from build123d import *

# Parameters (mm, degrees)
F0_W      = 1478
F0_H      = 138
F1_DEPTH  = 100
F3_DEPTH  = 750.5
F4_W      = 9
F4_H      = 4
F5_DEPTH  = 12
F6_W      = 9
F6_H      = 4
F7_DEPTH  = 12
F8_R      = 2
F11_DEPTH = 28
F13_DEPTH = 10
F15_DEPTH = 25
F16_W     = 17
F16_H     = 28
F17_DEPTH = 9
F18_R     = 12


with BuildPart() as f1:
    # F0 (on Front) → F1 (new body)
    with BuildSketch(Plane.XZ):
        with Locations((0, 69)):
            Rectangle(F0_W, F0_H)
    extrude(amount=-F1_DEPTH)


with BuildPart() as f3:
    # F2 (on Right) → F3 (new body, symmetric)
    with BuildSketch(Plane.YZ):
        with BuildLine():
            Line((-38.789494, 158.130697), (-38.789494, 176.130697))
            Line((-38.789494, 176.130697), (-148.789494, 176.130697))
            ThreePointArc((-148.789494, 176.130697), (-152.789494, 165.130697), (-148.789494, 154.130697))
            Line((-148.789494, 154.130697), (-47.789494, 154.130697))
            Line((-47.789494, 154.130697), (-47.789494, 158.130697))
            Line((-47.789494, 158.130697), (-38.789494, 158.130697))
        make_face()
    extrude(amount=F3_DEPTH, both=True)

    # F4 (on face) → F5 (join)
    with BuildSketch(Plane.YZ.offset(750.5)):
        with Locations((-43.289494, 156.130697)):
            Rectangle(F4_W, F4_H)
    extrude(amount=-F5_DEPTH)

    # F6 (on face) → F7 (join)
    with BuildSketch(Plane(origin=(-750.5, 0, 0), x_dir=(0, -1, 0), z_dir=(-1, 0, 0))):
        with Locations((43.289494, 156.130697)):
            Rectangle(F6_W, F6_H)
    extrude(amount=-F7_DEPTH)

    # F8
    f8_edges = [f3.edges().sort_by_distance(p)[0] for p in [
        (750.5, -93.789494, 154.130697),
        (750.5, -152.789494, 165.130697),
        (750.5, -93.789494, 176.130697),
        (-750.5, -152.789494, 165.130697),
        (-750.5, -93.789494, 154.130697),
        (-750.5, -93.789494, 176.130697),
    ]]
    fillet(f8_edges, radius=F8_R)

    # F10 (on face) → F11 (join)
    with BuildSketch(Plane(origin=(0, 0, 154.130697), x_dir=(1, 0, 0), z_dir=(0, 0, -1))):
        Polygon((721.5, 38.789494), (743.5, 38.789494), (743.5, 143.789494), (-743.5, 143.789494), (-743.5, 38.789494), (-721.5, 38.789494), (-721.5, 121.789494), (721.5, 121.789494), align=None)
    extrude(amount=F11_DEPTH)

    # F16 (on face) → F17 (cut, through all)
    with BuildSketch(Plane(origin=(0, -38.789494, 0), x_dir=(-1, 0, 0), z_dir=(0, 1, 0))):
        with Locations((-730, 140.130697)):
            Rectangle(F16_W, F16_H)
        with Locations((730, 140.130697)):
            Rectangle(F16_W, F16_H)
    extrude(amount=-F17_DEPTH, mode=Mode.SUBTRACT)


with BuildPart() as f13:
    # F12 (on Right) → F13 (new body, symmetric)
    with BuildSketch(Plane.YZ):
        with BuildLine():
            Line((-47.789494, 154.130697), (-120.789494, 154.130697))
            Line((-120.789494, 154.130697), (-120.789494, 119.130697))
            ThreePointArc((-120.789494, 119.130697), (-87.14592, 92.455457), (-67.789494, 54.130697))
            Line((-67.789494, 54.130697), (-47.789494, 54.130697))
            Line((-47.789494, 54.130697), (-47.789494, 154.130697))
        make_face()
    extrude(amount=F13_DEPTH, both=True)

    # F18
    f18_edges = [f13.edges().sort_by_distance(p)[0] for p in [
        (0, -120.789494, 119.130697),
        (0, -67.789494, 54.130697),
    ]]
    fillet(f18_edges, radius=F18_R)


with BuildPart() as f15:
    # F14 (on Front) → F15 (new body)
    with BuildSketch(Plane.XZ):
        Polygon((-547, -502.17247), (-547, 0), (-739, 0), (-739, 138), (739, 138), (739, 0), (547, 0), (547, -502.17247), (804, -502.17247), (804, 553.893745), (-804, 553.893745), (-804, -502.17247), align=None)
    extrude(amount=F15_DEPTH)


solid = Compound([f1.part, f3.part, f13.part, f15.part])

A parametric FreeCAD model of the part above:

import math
import FreeCAD as App
import Part
import Sketcher


def edges_at(feature, points):
    """Names of the edges that pass closest to the given points."""
    edges = feature.Shape.Edges
    near = lambda p: min(range(len(edges)), key=lambda i: edges[i].distToShape(Part.Vertex(*p))[0])
    return sorted({f"Edge{near(p) + 1}" for p in points})


def add_polygon(sketch, points):
    """Adds a closed chain of lines whose ends are joined by coincident constraints."""
    first, n = sketch.GeometryCount, len(points)
    for a, b in zip(points, points[1:] + points[:1]):
        sketch.addGeometry(Part.LineSegment(App.Vector(*a, 0), App.Vector(*b, 0)), False)
    for i in range(n):
        sketch.addConstraint(Sketcher.Constraint("Coincident", first + i, 2, first + (i + 1) % n, 1))

doc = App.newDocument("Part")
body = doc.addObject("PartDesign::Body", "Body")

# Sketch on XZ plane
sketch1 = doc.addObject("Sketcher::SketchObject", "Sketch")
body.addObject(sketch1)
sketch1.AttachmentSupport = (doc.XZ_Plane, [""])
sketch1.MapMode = "FlatFace"
add_polygon(sketch1, [(-739, 138), (-739, 0), (739, 0), (739, 138)])  # lines 0-3
sketch1.addConstraint([
    Sketcher.Constraint("Vertical", 0),
    Sketcher.Constraint("Horizontal", 1),
    Sketcher.Constraint("Vertical", 2),
    Sketcher.Constraint("Horizontal", 3),
    Sketcher.Constraint("Symmetric", 0, 2, 1, 2, -1, 1),
    Sketcher.Constraint("DistanceX", 1, 1, 1, 2, 1478.0),
    Sketcher.Constraint("DistanceY", 0, 2, 0, 1, 138.0),
])
pad1 = doc.addObject("PartDesign::Pad", "Pad")
body.addObject(pad1)
pad1.Profile = sketch1
pad1.Length = 100
pad1.Reversed = True
body2 = doc.addObject("PartDesign::Body", "Body001")

# Sketch on YZ plane
sketch2 = doc.addObject("Sketcher::SketchObject", "Sketch001")
body2.addObject(sketch2)
sketch2.AttachmentSupport = (doc.getObject("YZ_Plane001"), [""])
sketch2.MapMode = "FlatFace"
sketch2.addGeometry([
    Part.LineSegment(App.Vector(-38.789494, 158.130697, 0), App.Vector(-38.789494, 176.130697, 0)),  # 0
    Part.LineSegment(App.Vector(-38.789494, 176.130697, 0), App.Vector(-148.789494, 176.130697, 0)),  # 1
    Part.ArcOfCircle(Part.Circle(App.Vector(-135.664494, 165.130697, 0), App.Vector(0, 0, 1), 17.125), math.radians(140.033787), math.radians(219.966213)),  # 2
    Part.LineSegment(App.Vector(-148.789494, 154.130697, 0), App.Vector(-47.789494, 154.130697, 0)),  # 3
    Part.LineSegment(App.Vector(-47.789494, 154.130697, 0), App.Vector(-47.789494, 158.130697, 0)),  # 4
    Part.LineSegment(App.Vector(-47.789494, 158.130697, 0), App.Vector(-38.789494, 158.130697, 0)),  # 5
], False)
sketch2.addConstraint([
    Sketcher.Constraint("Coincident", 0, 2, 1, 1),
    Sketcher.Constraint("Coincident", 1, 2, 2, 1),
    Sketcher.Constraint("Coincident", 2, 2, 3, 1),
    Sketcher.Constraint("Coincident", 3, 2, 4, 1),
    Sketcher.Constraint("Coincident", 4, 2, 5, 1),
    Sketcher.Constraint("Coincident", 5, 2, 0, 1),
    Sketcher.Constraint("Vertical", 0),
    Sketcher.Constraint("Horizontal", 1),
    Sketcher.Constraint("Horizontal", 3),
    Sketcher.Constraint("Vertical", 4),
    Sketcher.Constraint("Horizontal", 5),
    Sketcher.Constraint("Vertical", 1, 2, 2, 2),
    Sketcher.Constraint("DistanceX", 1, 2, 1, 1, 110.0),
    Sketcher.Constraint("DistanceX", 3, 1, 3, 2, 101.0),
    Sketcher.Constraint("DistanceY", 0, 1, 0, 2, 18.0),
    Sketcher.Constraint("DistanceY", 4, 1, 4, 2, 4.0),
    Sketcher.Constraint("Radius", 2, 17.125),
    Sketcher.Constraint("DistanceX", 2, 3, -1, 1, 135.664494),
    Sketcher.Constraint("DistanceY", -1, 1, 2, 3, 165.130697),
])
pad2 = doc.addObject("PartDesign::Pad", "Pad001")
body2.addObject(pad2)
pad2.Profile = sketch2
pad2.Length = 1501
pad2.Midplane = True

# Sketch on YZ plane
sketch3 = doc.addObject("Sketcher::SketchObject", "Sketch002")
body2.addObject(sketch3)
sketch3.AttachmentSupport = (doc.getObject("YZ_Plane001"), [""])
sketch3.MapMode = "FlatFace"
sketch3.AttachmentOffset = App.Placement(App.Vector(0, 0, 750.5), App.Rotation())
add_polygon(sketch3, [(-47.789494, 158.130697), (-47.789494, 154.130697), (-38.789494, 154.130697), (-38.789494, 158.130697)])  # lines 0-3
sketch3.addConstraint([
    Sketcher.Constraint("Vertical", 0),
    Sketcher.Constraint("Horizontal", 1),
    Sketcher.Constraint("Vertical", 2),
    Sketcher.Constraint("Horizontal", 3),
    Sketcher.Constraint("DistanceX", 1, 1, 1, 2, 9.0),
    Sketcher.Constraint("DistanceY", 0, 2, 0, 1, 4.0),
    Sketcher.Constraint("DistanceX", 0, 2, -1, 1, 47.789494),
    Sketcher.Constraint("DistanceY", -1, 1, 0, 2, 154.130697),
])
pad3 = doc.addObject("PartDesign::Pad", "Pad002")
body2.addObject(pad3)
pad3.Profile = sketch3
pad3.Length = 12
pad3.Reversed = True

# Sketch on YZ plane
sketch4 = doc.addObject("Sketcher::SketchObject", "Sketch003")
body2.addObject(sketch4)
sketch4.AttachmentSupport = (doc.getObject("YZ_Plane001"), [""])
sketch4.MapMode = "FlatFace"
sketch4.AttachmentOffset = App.Placement(App.Vector(0, 0, -750.5), App.Rotation())
add_polygon(sketch4, [(-38.789494, 158.130697), (-38.789494, 154.130697), (-47.789494, 154.130697), (-47.789494, 158.130697)])  # lines 0-3
sketch4.addConstraint([
    Sketcher.Constraint("Vertical", 0),
    Sketcher.Constraint("Horizontal", 1),
    Sketcher.Constraint("Vertical", 2),
    Sketcher.Constraint("Horizontal", 3),
    Sketcher.Constraint("DistanceX", 1, 2, 1, 1, 9.0),
    Sketcher.Constraint("DistanceY", 0, 2, 0, 1, 4.0),
    Sketcher.Constraint("DistanceX", 0, 2, -1, 1, 38.789494),
    Sketcher.Constraint("DistanceY", -1, 1, 0, 2, 154.130697),
])
pad4 = doc.addObject("PartDesign::Pad", "Pad003")
body2.addObject(pad4)
pad4.Profile = sketch4
pad4.Length = 12
doc.recompute()

fillet = doc.addObject("PartDesign::Fillet", "Fillet")
body2.addObject(fillet)
fillet.Base = (pad4, edges_at(pad4, [
    (750.5, -93.789, 154.131),
    (750.5, -152.789, 165.131),
    (750.5, -93.789, 176.131),
    (-750.5, -152.789, 165.131),
    (-750.5, -93.789, 154.131),
    (-750.5, -93.789, 176.131),
]))
fillet.Radius = 2

# Sketch on XY plane
sketch5 = doc.addObject("Sketcher::SketchObject", "Sketch004")
body2.addObject(sketch5)
sketch5.AttachmentSupport = (doc.getObject("XY_Plane001"), [""])
sketch5.MapMode = "FlatFace"
sketch5.AttachmentOffset = App.Placement(App.Vector(0, 0, 154.130697), App.Rotation())
add_polygon(sketch5, [(721.5, -38.789494), (743.5, -38.789494), (743.5, -143.789494), (-743.5, -143.789494), (-743.5, -38.789494), (-721.5, -38.789494), (-721.5, -121.789494), (721.5, -121.789494)])  # lines 0-7
sketch5.addConstraint([
    Sketcher.Constraint("Horizontal", 0),
    Sketcher.Constraint("Vertical", 1),
    Sketcher.Constraint("Horizontal", 2),
    Sketcher.Constraint("Vertical", 3),
    Sketcher.Constraint("Horizontal", 4),
    Sketcher.Constraint("Vertical", 5),
    Sketcher.Constraint("Horizontal", 6),
    Sketcher.Constraint("Vertical", 7),
    Sketcher.Constraint("Symmetric", 0, 2, 3, 2, -2),
    Sketcher.Constraint("Equal", 0, 4),
    Sketcher.Constraint("DistanceX", 0, 1, 0, 2, 22.0),
    Sketcher.Constraint("DistanceX", 2, 2, 2, 1, 1487.0),
    Sketcher.Constraint("DistanceY", 1, 2, 1, 1, 105.0),
    Sketcher.Constraint("DistanceY", 5, 2, 5, 1, 83.0),
    Sketcher.Constraint("DistanceY", 0, 2, -1, 1, 38.789494),
])
pad5 = doc.addObject("PartDesign::Pad", "Pad004")
body2.addObject(pad5)
pad5.Profile = sketch5
pad5.Length = 28
pad5.Reversed = True

# Sketch on XZ plane
sketch6 = doc.addObject("Sketcher::SketchObject", "Sketch005")
body2.addObject(sketch6)
sketch6.AttachmentSupport = (doc.getObject("XZ_Plane001"), [""])
sketch6.MapMode = "FlatFace"
sketch6.AttachmentOffset = App.Placement(App.Vector(0, 0, 38.789494), App.Rotation())
add_polygon(sketch6, [(738.5, 154.130697), (738.5, 126.130697), (721.5, 126.130697), (721.5, 154.130697)])  # lines 0-3
add_polygon(sketch6, [(-721.5, 154.130697), (-721.5, 126.130697), (-738.5, 126.130697), (-738.5, 154.130697)])  # lines 4-7
sketch6.addConstraint([
    Sketcher.Constraint("Vertical", 0),
    Sketcher.Constraint("Horizontal", 1),
    Sketcher.Constraint("Vertical", 2),
    Sketcher.Constraint("Horizontal", 3),
    Sketcher.Constraint("Vertical", 4),
    Sketcher.Constraint("Horizontal", 5),
    Sketcher.Constraint("Vertical", 6),
    Sketcher.Constraint("Horizontal", 7),
    Sketcher.Constraint("Symmetric", 1, 2, 4, 2, -2),
    Sketcher.Constraint("Symmetric", 3, 2, 6, 2, -2),
    Sketcher.Constraint("DistanceX", 1, 2, 1, 1, 17.0),
    Sketcher.Constraint("DistanceY", 0, 2, 0, 1, 28.0),
    Sketcher.Constraint("DistanceX", 4, 2, 1, 2, 1443.0),
    Sketcher.Constraint("DistanceY", -1, 1, 0, 2, 126.130697),
])
pocket1 = doc.addObject("PartDesign::Pocket", "Pocket")
body2.addObject(pocket1)
pocket1.Profile = sketch6
pocket1.Length = 9
pocket1.Reversed = True
body3 = doc.addObject("PartDesign::Body", "Body002")

# Sketch on YZ plane
sketch7 = doc.addObject("Sketcher::SketchObject", "Sketch006")
body3.addObject(sketch7)
sketch7.AttachmentSupport = (doc.getObject("YZ_Plane002"), [""])
sketch7.MapMode = "FlatFace"
sketch7.addGeometry([
    Part.LineSegment(App.Vector(-47.789494, 154.130697, 0), App.Vector(-120.789494, 154.130697, 0)),  # 0
    Part.LineSegment(App.Vector(-120.789494, 154.130697, 0), App.Vector(-120.789494, 119.130697, 0)),  # 1
    Part.ArcOfCircle(Part.Circle(App.Vector(-164.647789, 29.261626, 0), App.Vector(0, 0, 1), 100), math.radians(14.400049), math.radians(63.986497)),  # 2
    Part.LineSegment(App.Vector(-67.789494, 54.130697, 0), App.Vector(-47.789494, 54.130697, 0)),  # 3
    Part.LineSegment(App.Vector(-47.789494, 54.130697, 0), App.Vector(-47.789494, 154.130697, 0)),  # 4
], False)
sketch7.addConstraint([
    Sketcher.Constraint("Coincident", 0, 2, 1, 1),
    Sketcher.Constraint("Coincident", 1, 2, 2, 2),
    Sketcher.Constraint("Coincident", 2, 1, 3, 1),
    Sketcher.Constraint("Coincident", 3, 2, 4, 1),
    Sketcher.Constraint("Coincident", 4, 2, 0, 1),
    Sketcher.Constraint("Horizontal", 0),
    Sketcher.Constraint("Vertical", 1),
    Sketcher.Constraint("Horizontal", 3),
    Sketcher.Constraint("Vertical", 4),
    Sketcher.Constraint("Radius", 2, 100.0),
    Sketcher.Constraint("DistanceX", 0, 2, 0, 1, 73.0),
    Sketcher.Constraint("DistanceX", 3, 1, 3, 2, 20.0),
    Sketcher.Constraint("DistanceY", 1, 2, 1, 1, 35.0),
    Sketcher.Constraint("DistanceY", 4, 1, 4, 2, 100.0),
    Sketcher.Constraint("DistanceX", 2, 3, -1, 1, 164.647789),
    Sketcher.Constraint("DistanceY", -1, 1, 2, 3, 29.261626),
])
pad6 = doc.addObject("PartDesign::Pad", "Pad005")
body3.addObject(pad6)
pad6.Profile = sketch7
pad6.Length = 20
pad6.Midplane = True
doc.recompute()

fillet2 = doc.addObject("PartDesign::Fillet", "Fillet001")
body3.addObject(fillet2)
fillet2.Base = (pad6, edges_at(pad6, [(0, -120.789, 119.131), (0, -67.789, 54.131)]))
fillet2.Radius = 12
body4 = doc.addObject("PartDesign::Body", "Body003")

# Sketch on XZ plane
sketch8 = doc.addObject("Sketcher::SketchObject", "Sketch007")
body4.addObject(sketch8)
sketch8.AttachmentSupport = (doc.getObject("XZ_Plane003"), [""])
sketch8.MapMode = "FlatFace"
add_polygon(sketch8, [(-547, -502.17247), (-547, 0), (-739, 0), (-739, 138), (739, 138), (739, 0), (547, 0), (547, -502.17247), (804, -502.17247), (804, 553.893745), (-804, 553.893745), (-804, -502.17247)])  # lines 0-11
sketch8.addConstraint([
    Sketcher.Constraint("Vertical", 0),
    Sketcher.Constraint("Horizontal", 1),
    Sketcher.Constraint("Vertical", 2),
    Sketcher.Constraint("Horizontal", 3),
    Sketcher.Constraint("Vertical", 4),
    Sketcher.Constraint("Horizontal", 5),
    Sketcher.Constraint("Vertical", 6),
    Sketcher.Constraint("Horizontal", 7),
    Sketcher.Constraint("Vertical", 8),
    Sketcher.Constraint("Horizontal", 9),
    Sketcher.Constraint("Vertical", 10),
    Sketcher.Constraint("Horizontal", 11),
    Sketcher.Constraint("Symmetric", 1, 2, 4, 2, -1, 1),
    Sketcher.Constraint("Symmetric", 0, 2, 5, 2, -2),
    Sketcher.Constraint("Symmetric", 7, 2, 10, 2, -2),
    Sketcher.Constraint("DistanceX", 1, 2, 1, 1, 192.0),
    Sketcher.Constraint("DistanceX", 3, 1, 3, 2, 1478.0),
    Sketcher.Constraint("DistanceX", 7, 1, 7, 2, 257.0),
    Sketcher.Constraint("DistanceY", 2, 1, 2, 2, 138.0),
    Sketcher.Constraint("DistanceY", 0, 1, 0, 2, 502.17247),
    Sketcher.Constraint("DistanceY", 8, 1, 8, 2, 1056.066215),
])
pad7 = doc.addObject("PartDesign::Pad", "Pad006")
body4.addObject(pad7)
pad7.Profile = sketch8
pad7.Length = 25

doc.recompute()
